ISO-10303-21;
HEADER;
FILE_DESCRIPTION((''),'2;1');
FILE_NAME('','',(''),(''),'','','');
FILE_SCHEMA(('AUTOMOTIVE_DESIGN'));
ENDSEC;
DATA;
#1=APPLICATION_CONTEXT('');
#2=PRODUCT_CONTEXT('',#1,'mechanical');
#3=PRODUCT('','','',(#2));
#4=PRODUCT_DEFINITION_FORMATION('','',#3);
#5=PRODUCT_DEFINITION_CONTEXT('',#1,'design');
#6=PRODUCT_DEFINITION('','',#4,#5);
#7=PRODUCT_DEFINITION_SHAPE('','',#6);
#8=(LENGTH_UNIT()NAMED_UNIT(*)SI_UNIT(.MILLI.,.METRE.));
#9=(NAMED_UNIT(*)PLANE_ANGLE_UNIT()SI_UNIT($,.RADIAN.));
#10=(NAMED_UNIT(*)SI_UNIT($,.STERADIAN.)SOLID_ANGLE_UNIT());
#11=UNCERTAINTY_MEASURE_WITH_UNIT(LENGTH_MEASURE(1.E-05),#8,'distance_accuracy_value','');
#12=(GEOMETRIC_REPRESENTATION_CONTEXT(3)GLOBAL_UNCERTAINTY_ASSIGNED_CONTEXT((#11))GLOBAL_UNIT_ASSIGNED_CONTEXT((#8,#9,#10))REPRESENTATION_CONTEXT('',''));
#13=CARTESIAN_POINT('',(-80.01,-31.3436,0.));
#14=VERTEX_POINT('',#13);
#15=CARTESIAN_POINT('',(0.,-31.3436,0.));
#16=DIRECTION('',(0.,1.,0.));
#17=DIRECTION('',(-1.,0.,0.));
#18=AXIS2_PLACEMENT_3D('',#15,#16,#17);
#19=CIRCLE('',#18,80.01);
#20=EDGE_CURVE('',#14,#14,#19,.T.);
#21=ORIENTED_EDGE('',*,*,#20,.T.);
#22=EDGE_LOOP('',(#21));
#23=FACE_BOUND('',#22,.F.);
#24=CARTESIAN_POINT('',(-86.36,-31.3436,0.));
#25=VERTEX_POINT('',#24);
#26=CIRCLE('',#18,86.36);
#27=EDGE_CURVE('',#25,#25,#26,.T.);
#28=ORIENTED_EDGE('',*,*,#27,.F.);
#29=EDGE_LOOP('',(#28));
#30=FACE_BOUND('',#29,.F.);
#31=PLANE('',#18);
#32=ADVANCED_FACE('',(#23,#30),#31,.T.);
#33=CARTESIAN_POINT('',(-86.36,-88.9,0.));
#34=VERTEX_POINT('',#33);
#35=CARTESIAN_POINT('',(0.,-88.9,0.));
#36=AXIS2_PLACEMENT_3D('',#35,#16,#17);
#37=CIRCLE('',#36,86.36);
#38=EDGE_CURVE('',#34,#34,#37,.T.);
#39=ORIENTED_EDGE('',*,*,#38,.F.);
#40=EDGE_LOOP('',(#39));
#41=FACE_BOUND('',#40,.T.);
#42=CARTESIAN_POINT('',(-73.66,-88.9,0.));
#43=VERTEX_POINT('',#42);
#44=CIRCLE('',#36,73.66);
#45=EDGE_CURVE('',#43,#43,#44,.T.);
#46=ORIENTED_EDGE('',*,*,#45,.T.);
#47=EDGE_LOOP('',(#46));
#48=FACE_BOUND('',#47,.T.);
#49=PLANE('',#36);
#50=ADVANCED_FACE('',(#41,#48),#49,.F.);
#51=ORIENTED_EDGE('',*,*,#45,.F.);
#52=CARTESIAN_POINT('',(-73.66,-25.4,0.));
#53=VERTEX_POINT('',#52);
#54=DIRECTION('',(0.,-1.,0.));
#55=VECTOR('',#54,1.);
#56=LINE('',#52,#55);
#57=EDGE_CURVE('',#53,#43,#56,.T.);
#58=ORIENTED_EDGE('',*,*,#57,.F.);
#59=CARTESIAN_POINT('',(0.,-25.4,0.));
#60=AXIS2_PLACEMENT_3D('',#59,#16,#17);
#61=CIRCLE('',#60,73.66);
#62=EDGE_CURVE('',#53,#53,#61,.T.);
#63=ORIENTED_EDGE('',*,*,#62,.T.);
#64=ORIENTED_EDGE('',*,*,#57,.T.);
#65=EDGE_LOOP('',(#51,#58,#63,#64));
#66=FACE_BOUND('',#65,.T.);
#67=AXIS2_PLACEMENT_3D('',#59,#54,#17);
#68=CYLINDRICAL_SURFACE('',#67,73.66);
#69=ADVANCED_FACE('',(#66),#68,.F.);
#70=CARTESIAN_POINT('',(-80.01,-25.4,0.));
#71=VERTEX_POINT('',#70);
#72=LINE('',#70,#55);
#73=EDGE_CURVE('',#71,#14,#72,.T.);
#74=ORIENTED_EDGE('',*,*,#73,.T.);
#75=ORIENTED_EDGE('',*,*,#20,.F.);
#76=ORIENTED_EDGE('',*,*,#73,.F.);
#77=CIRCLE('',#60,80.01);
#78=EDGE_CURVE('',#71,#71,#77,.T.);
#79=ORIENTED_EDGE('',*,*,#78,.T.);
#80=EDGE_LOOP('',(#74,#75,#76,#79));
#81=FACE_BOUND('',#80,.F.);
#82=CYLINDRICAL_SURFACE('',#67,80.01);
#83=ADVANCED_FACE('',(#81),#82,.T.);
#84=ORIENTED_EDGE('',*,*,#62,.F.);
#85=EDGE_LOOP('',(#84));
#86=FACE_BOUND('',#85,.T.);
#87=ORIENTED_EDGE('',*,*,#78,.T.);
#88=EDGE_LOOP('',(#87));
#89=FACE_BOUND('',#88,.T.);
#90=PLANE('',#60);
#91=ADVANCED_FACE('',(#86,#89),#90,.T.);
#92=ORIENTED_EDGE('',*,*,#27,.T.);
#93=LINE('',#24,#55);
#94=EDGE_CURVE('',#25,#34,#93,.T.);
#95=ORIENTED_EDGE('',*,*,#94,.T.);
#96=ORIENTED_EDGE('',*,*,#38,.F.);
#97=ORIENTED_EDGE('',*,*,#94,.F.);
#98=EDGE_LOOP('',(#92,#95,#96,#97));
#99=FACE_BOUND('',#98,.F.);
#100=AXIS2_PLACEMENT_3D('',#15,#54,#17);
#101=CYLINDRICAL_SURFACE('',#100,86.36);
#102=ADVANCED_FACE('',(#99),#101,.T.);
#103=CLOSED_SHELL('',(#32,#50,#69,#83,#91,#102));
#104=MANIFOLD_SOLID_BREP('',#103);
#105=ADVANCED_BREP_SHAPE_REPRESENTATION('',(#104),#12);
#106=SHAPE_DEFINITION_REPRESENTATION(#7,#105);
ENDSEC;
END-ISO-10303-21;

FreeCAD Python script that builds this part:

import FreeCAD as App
import Part
import Sketcher

V = App.Vector
Q = App.Units.Quantity

doc = App.newDocument("Part")
body = doc.addObject("PartDesign::Body", "Body")

# Sketch on XY plane
sketch1 = body.newObject("Sketcher::SketchObject", "Sketch")
sketch1.AttachmentSupport = (doc.getObject("XY_Plane"), [""])
sketch1.MapMode = "FlatFace"
sketch1.addGeometry(Part.LineSegment(V(-74, -25, 0), V(-80, -25, 0)), False)
sketch1.addGeometry(Part.LineSegment(V(-80, -25, 0), V(-80, -31, 0)), False)
sketch1.addGeometry(Part.LineSegment(V(-80, -31, 0), V(-86, -31, 0)), False)
sketch1.addGeometry(Part.LineSegment(V(-86, -31, 0), V(-86, -89, 0)), False)
sketch1.addGeometry(Part.LineSegment(V(-86, -89, 0), V(-74, -89, 0)), False)
sketch1.addGeometry(Part.LineSegment(V(-74, -89, 0), V(-74, -25, 0)), False)
sketch1.addConstraint(Sketcher.Constraint("Coincident", 0, 2, 1, 1))
sketch1.addConstraint(Sketcher.Constraint("Coincident", 1, 2, 2, 1))
sketch1.addConstraint(Sketcher.Constraint("Coincident", 2, 2, 3, 1))
sketch1.addConstraint(Sketcher.Constraint("Coincident", 3, 2, 4, 1))
sketch1.addConstraint(Sketcher.Constraint("Coincident", 4, 2, 5, 1))
sketch1.addConstraint(Sketcher.Constraint("Coincident", 5, 2, 0, 1))
sketch1.addConstraint(Sketcher.Constraint("Horizontal", 0))
sketch1.addConstraint(Sketcher.Constraint("Vertical", 1))
sketch1.addConstraint(Sketcher.Constraint("Horizontal", 2))
sketch1.addConstraint(Sketcher.Constraint("Vertical", 3))
sketch1.addConstraint(Sketcher.Constraint("Horizontal", 4))
sketch1.addConstraint(Sketcher.Constraint("Vertical", 5))
sketch1.addConstraint(Sketcher.Constraint("Equal", 0, 2))
sketch1.addConstraint(Sketcher.Constraint("DistanceX", 4, 1, 4, 2, Q("0.5 in")))
sketch1.addConstraint(Sketcher.Constraint("DistanceY", 5, 1, 5, 2, Q("2.5 in")))
sketch1.addConstraint(Sketcher.Constraint("DistanceY", 0, 2, -1, 1, Q("1 in")))
sketch1.addConstraint(Sketcher.Constraint("DistanceX", 2, 2, -1, 1, Q("3.4 in")))
sketch1.addConstraint(Sketcher.Constraint("DistanceY", 1, 2, 1, 1, Q("0.234 in")))
revolution = body.newObject("PartDesign::Revolution", "Revolution")
revolution.Profile = sketch1
revolution.ReferenceAxis = (sketch1, ["V_Axis"])
revolution.Angle = 360

doc.recompute()
